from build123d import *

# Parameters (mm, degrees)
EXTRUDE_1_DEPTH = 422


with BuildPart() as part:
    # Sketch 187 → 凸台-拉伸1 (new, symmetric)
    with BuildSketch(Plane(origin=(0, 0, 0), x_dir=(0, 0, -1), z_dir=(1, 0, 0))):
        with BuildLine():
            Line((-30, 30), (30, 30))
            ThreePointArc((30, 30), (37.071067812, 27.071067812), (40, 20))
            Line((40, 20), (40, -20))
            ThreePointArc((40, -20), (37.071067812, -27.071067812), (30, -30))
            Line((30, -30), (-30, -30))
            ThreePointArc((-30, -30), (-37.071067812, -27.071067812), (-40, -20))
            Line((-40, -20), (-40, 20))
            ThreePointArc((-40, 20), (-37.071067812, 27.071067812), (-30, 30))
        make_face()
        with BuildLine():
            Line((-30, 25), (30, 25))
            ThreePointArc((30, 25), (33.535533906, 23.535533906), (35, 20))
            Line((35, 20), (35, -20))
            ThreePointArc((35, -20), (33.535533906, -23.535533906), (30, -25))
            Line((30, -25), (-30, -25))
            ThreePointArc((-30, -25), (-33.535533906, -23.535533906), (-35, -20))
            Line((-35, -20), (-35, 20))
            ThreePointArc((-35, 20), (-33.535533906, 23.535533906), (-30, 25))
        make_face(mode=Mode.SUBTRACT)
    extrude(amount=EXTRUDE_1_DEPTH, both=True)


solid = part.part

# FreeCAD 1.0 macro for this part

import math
import FreeCAD as App
import Part
import Sketcher

V = App.Vector

doc = App.newDocument("Part")
body = doc.addObject("PartDesign::Body", "Body")

# Sketch on YZ plane
sketch1 = body.newObject("Sketcher::SketchObject", "Sketch")
sketch1.AttachmentSupport = (doc.getObject("YZ_Plane"), [""])
sketch1.MapMode = "FlatFace"
sketch1.addGeometry([
    Part.LineSegment(V(30, -30, 0), V(30, 30, 0)),  # 0
    Part.ArcOfCircle(Part.Circle(V(20, 30, 0), V(0, 0, 1), 10), math.radians(0), math.radians(90)),  # 1
    Part.LineSegment(V(20, 40, 0), V(-20, 40, 0)),  # 2
    Part.ArcOfCircle(Part.Circle(V(-20, 30, 0), V(0, 0, 1), 10), math.radians(90), math.radians(180)),  # 3
    Part.LineSegment(V(-30, 30, 0), V(-30, -30, 0)),  # 4
    Part.ArcOfCircle(Part.Circle(V(-20, -30, 0), V(0, 0, 1), 10), math.radians(180), math.radians(270)),  # 5
    Part.LineSegment(V(-20, -40, 0), V(20, -40, 0)),  # 6
    Part.ArcOfCircle(Part.Circle(V(20, -30, 0), V(0, 0, 1), 10), math.radians(-90), math.radians(0)),  # 7
    Part.LineSegment(V(25, 30, 0), V(25, -30, 0)),  # 8
    Part.ArcOfCircle(Part.Circle(V(20, -30, 0), V(0, 0, 1), 5), math.radians(-90), math.radians(0)),  # 9
    Part.LineSegment(V(20, -35, 0), V(-20, -35, 0)),  # 10
    Part.ArcOfCircle(Part.Circle(V(-20, -30, 0), V(0, 0, 1), 5), math.radians(180), math.radians(270)),  # 11
    Part.LineSegment(V(-25, -30, 0), V(-25, 30, 0)),  # 12
    Part.ArcOfCircle(Part.Circle(V(-20, 30, 0), V(0, 0, 1), 5), math.radians(90), math.radians(180)),  # 13
    Part.LineSegment(V(-20, 35, 0), V(20, 35, 0)),  # 14
    Part.ArcOfCircle(Part.Circle(V(20, 30, 0), V(0, 0, 1), 5), math.radians(0), math.radians(90)),  # 15
], False)
sketch1.addConstraint([
    Sketcher.Constraint("Tangent", 0, 2, 1, 1),
    Sketcher.Constraint("Tangent", 1, 2, 2, 1),
    Sketcher.Constraint("Tangent", 2, 2, 3, 1),
    Sketcher.Constraint("Tangent", 3, 2, 4, 1),
    Sketcher.Constraint("Tangent", 4, 2, 5, 1),
    Sketcher.Constraint("Tangent", 5, 2, 6, 1),
    Sketcher.Constraint("Tangent", 6, 2, 7, 1),
    Sketcher.Constraint("Tangent", 7, 2, 0, 1),
    Sketcher.Constraint("Tangent", 8, 2, 9, 2),
    Sketcher.Constraint("Tangent", 9, 1, 10, 1),
    Sketcher.Constraint("Tangent", 10, 2, 11, 2),
    Sketcher.Constraint("Tangent", 11, 1, 12, 1),
    Sketcher.Constraint("Tangent", 12, 2, 13, 2),
    Sketcher.Constraint("Tangent", 13, 1, 14, 1),
    Sketcher.Constraint("Tangent", 14, 2, 15, 2),
    Sketcher.Constraint("Tangent", 15, 1, 8, 1),
    Sketcher.Constraint("Vertical", 0),
    Sketcher.Constraint("Horizontal", 2),
    Sketcher.Constraint("Vertical", 4),
    Sketcher.Constraint("Horizontal", 6),
    Sketcher.Constraint("Vertical", 8),
    Sketcher.Constraint("Horizontal", 10),
    Sketcher.Constraint("Vertical", 12),
    Sketcher.Constraint("Horizontal", 14),
    Sketcher.Constraint("Coincident", 9, 3, 7, 3),
    Sketcher.Constraint("Coincident", 11, 3, 5, 3),
    Sketcher.Constraint("Coincident", 13, 3, 3, 3),
    Sketcher.Constraint("Equal", 1, 3),
    Sketcher.Constraint("Equal", 3, 5),
    Sketcher.Constraint("Equal", 5, 7),
    Sketcher.Constraint("Equal", 13, 15),
    Sketcher.Constraint("Symmetric", 1, 3, 5, 3, -1, 1),
    Sketcher.Constraint("Radius", 1, 10.0),
    Sketcher.Constraint("Radius", 9, 5.0),
    Sketcher.Constraint("DistanceX", 2, 2, 2, 1, 40.0),
    Sketcher.Constraint("DistanceY", 0, 1, 0, 2, 60.0),
])
pad1 = body.newObject("PartDesign::Pad", "Pad")
pad1.Profile = sketch1
pad1.Length = 844
pad1.Midplane = True

doc.recompute()
